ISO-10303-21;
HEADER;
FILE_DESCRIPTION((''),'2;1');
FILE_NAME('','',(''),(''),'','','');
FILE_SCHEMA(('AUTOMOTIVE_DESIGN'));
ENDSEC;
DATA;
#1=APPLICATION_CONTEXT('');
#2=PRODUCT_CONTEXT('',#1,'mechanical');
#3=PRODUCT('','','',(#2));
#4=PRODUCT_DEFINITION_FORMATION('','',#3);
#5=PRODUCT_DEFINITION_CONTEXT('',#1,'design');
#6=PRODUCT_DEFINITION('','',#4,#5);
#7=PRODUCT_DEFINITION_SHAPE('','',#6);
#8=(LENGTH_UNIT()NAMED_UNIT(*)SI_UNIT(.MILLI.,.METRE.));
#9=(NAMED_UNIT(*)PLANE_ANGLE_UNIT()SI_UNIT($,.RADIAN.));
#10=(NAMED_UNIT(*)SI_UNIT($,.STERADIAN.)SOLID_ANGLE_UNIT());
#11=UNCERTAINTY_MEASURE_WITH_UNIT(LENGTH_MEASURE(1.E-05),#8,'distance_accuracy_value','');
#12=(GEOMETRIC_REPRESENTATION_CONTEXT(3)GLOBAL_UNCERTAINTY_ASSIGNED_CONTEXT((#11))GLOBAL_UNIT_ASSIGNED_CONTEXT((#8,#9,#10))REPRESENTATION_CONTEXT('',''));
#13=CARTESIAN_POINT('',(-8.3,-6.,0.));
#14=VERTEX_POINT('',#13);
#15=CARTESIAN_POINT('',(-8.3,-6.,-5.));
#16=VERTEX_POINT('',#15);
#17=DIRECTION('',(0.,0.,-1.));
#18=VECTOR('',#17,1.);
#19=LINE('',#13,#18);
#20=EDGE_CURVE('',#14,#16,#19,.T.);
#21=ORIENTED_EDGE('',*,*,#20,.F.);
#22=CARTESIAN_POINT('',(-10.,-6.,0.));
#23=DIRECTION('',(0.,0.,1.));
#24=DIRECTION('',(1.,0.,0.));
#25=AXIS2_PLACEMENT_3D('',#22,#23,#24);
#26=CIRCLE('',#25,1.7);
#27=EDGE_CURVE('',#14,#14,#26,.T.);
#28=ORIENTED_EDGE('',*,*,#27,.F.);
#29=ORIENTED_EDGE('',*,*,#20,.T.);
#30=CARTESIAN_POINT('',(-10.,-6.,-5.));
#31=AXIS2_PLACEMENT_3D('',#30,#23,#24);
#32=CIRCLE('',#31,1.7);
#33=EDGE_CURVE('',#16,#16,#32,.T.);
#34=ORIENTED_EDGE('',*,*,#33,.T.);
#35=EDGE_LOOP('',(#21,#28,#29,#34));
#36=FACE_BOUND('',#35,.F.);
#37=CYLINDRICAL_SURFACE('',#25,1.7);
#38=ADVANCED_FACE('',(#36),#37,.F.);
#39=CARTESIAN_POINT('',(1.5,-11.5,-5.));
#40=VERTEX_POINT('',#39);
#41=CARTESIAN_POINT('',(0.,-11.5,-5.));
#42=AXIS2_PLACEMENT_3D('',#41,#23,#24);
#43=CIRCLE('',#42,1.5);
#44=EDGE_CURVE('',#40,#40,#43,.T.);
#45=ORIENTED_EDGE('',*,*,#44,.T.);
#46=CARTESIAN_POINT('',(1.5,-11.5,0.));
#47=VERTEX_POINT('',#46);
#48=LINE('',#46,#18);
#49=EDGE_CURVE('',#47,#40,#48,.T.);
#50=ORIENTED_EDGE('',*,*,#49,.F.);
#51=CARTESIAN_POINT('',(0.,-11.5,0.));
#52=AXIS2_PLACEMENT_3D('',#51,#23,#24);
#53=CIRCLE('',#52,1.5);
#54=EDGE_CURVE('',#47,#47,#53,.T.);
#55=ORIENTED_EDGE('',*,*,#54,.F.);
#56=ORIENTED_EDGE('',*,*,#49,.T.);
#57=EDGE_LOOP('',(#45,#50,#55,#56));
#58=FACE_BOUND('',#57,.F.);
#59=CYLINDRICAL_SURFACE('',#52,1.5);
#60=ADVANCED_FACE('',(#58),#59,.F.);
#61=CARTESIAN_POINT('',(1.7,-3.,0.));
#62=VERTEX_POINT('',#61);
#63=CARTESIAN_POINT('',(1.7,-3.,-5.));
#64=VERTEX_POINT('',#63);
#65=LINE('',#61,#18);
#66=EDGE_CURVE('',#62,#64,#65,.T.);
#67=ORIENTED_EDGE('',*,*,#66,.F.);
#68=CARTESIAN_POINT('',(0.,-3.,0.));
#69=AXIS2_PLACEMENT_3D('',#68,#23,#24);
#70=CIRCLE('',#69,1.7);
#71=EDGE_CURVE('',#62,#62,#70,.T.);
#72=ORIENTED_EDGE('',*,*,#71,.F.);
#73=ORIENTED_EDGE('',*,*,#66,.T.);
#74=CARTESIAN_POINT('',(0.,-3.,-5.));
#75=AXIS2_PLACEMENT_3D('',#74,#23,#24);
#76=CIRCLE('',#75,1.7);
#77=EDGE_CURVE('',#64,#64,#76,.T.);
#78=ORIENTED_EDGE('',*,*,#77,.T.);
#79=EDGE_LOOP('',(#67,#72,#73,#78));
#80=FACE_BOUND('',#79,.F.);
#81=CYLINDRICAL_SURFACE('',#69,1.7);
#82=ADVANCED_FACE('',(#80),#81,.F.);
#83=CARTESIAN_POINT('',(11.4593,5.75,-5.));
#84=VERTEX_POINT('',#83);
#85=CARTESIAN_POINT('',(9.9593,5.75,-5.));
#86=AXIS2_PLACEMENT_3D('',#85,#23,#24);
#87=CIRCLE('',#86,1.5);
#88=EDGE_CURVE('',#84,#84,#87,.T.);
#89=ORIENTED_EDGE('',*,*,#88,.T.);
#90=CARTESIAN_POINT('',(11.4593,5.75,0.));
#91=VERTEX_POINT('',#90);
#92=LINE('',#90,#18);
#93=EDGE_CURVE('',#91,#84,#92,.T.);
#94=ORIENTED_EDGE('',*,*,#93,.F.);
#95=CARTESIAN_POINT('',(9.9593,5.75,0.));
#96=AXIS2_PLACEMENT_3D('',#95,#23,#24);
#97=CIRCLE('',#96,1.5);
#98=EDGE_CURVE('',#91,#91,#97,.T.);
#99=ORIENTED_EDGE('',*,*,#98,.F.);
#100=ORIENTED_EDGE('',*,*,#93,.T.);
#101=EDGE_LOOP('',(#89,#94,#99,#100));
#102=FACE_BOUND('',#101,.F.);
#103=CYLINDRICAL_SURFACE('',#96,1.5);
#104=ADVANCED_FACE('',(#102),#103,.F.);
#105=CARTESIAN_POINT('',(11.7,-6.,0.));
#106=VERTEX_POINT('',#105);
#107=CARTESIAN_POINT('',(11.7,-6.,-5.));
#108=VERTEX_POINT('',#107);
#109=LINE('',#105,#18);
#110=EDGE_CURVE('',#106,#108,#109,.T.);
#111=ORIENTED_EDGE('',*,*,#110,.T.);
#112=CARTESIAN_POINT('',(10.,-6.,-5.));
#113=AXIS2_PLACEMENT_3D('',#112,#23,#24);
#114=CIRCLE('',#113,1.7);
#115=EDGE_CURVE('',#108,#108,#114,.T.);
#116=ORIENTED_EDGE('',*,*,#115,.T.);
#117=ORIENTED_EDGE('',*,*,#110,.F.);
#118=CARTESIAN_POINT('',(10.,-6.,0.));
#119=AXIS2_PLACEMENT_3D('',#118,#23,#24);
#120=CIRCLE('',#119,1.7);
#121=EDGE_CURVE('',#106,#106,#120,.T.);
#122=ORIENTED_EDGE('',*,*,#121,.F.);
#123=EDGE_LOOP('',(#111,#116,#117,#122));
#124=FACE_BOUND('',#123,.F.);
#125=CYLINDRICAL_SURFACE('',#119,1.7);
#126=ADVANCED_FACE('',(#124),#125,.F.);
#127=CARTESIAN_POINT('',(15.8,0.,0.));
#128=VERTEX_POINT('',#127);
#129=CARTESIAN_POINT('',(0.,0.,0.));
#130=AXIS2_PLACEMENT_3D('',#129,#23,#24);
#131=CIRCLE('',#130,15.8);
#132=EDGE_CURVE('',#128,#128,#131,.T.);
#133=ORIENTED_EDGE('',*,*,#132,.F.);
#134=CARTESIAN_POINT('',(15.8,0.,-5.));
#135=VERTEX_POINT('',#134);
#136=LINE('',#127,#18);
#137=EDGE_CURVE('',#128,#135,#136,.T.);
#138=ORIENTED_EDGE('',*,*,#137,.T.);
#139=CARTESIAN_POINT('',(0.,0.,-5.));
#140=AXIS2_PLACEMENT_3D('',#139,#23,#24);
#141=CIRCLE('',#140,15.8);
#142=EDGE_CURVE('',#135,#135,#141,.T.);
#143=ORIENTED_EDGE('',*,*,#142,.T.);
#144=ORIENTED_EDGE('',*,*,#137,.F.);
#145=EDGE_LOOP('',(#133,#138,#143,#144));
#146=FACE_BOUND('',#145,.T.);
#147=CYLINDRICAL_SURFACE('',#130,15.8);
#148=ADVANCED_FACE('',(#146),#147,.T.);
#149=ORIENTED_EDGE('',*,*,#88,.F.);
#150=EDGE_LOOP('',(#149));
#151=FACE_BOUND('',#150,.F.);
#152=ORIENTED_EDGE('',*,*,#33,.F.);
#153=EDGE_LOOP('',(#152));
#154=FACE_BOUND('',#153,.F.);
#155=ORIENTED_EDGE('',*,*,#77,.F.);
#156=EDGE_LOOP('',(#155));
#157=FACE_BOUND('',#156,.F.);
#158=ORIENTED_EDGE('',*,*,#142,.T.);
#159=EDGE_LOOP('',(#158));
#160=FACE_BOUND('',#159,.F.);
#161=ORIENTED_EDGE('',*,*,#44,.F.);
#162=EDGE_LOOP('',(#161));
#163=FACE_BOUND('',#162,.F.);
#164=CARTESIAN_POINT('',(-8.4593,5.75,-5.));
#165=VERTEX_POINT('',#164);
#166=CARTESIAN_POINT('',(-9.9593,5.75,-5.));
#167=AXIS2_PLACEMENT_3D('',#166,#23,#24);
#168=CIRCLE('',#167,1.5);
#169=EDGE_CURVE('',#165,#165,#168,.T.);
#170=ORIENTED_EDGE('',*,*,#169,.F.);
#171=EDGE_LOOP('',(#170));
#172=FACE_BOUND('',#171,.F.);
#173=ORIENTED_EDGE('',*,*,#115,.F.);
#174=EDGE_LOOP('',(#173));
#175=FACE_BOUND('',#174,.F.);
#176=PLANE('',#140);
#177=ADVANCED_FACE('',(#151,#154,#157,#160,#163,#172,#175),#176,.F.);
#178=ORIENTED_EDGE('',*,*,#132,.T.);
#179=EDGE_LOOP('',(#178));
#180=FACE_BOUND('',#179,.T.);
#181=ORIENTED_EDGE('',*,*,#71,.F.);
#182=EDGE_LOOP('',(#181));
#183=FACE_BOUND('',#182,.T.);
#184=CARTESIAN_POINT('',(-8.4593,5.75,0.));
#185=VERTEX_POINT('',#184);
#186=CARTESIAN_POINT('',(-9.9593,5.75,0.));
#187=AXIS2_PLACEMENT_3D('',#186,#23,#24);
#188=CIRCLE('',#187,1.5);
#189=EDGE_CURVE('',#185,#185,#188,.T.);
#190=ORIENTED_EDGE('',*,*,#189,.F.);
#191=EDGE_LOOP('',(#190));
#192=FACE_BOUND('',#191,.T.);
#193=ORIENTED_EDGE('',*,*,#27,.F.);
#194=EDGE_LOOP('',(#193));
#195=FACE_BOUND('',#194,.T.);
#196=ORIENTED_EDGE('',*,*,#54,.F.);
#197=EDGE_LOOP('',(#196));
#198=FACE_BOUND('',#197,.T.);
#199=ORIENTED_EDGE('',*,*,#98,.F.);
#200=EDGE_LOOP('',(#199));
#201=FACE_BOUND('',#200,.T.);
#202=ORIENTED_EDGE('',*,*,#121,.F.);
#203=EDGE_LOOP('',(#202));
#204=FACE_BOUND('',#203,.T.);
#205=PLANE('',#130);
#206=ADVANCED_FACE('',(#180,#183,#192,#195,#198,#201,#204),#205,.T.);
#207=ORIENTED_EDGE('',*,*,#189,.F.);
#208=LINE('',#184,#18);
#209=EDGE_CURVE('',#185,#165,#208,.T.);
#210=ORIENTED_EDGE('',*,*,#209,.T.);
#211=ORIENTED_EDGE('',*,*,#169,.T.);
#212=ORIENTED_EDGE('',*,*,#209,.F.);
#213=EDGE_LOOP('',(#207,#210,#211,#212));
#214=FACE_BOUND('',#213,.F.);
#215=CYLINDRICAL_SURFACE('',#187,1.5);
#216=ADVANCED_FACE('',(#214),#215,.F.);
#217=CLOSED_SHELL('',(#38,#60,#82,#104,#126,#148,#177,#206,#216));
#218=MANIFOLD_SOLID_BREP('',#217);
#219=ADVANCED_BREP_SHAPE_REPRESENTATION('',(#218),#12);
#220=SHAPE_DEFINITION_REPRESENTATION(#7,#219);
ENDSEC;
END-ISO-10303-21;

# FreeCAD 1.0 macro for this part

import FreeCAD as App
import Part
import Sketcher

V = App.Vector
Q = App.Units.Quantity

doc = App.newDocument("Part")
body = doc.addObject("PartDesign::Body", "Body")

# Sketch on XY plane
sketch1 = doc.addObject("Sketcher::SketchObject", "Sketch")
body.addObject(sketch1)
sketch1.AttachmentSupport = (doc.XY_Plane, [""])
sketch1.MapMode = "FlatFace"
sketch1.addGeometry(Part.Circle(V(0, 0, 0), V(0, 0, 1), 16), False)
sketch1.addConstraint([
    Sketcher.Constraint("Coincident", 0, 3, -1, 1),
    Sketcher.Constraint("Diameter", 0, Q("31.6 mm")),
])
pad1 = doc.addObject("PartDesign::Pad", "Pad")
body.addObject(pad1)
pad1.Profile = sketch1
pad1.Length = 5
pad1.Reversed = True

# Sketch on XY plane
sketch2 = doc.addObject("Sketcher::SketchObject", "Sketch001")
body.addObject(sketch2)
sketch2.AttachmentSupport = (doc.XY_Plane, [""])
sketch2.MapMode = "FlatFace"
sketch2.addGeometry([
    Part.Circle(V(0, -3, 0), V(0, 0, 1), 1.7),
    Part.Circle(V(-10, -6, 0), V(0, 0, 1), 1.7),
    Part.Circle(V(10, -6, 0), V(0, 0, 1), 1.7),
], False)
sketch2.addConstraint([
    Sketcher.Constraint("Equal", 0, 1),
    Sketcher.Constraint("Equal", 1, 2),
    Sketcher.Constraint("Symmetric", 1, 3, 2, 3, -2),
    Sketcher.Constraint("PointOnObject", 0, 3, -2),
    Sketcher.Constraint("Diameter", 0, Q("3.4 mm")),
    Sketcher.Constraint("DistanceY", 0, 3, -1, 1, Q("3 mm")),
    Sketcher.Constraint("DistanceX", 1, 3, -1, 1, Q("10 mm")),
    Sketcher.Constraint("DistanceY", 1, 3, -1, 1, Q("6 mm")),
])
pocket1 = doc.addObject("PartDesign::Pocket", "Pocket")
body.addObject(pocket1)
pocket1.Profile = sketch2
pocket1.Type = "ThroughAll"

# Sketch on XY plane
sketch3 = doc.addObject("Sketcher::SketchObject", "Sketch002")
body.addObject(sketch3)
sketch3.AttachmentSupport = (doc.XY_Plane, [""])
sketch3.MapMode = "FlatFace"
sketch3.addGeometry([
    Part.Circle(V(0, -11.5, 0), V(0, 0, 1), 1.5),
    Part.Circle(V(10, 5.8, 0), V(0, 0, 1), 1.5),
    Part.Circle(V(-10, 5.8, 0), V(0, 0, 1), 1.5),
], False)
sketch3.addConstraint([
    Sketcher.Constraint("Equal", 0, 1),
    Sketcher.Constraint("Equal", 1, 2),
    Sketcher.Constraint("Symmetric", 1, 3, 2, 3, -2),
    Sketcher.Constraint("PointOnObject", 0, 3, -2),
    Sketcher.Constraint("Diameter", 0, Q("3 mm")),
    Sketcher.Constraint("DistanceY", 0, 3, -1, 1, Q("11.5 mm")),
    Sketcher.Constraint("DistanceY", -1, 1, 1, 3, Q("5.75 mm")),
    Sketcher.Constraint("DistanceX", -1, 1, 1, 3, Q("9.9593 mm")),
])
pocket2 = doc.addObject("PartDesign::Pocket", "Pocket001")
body.addObject(pocket2)
pocket2.Profile = sketch3
pocket2.Type = "ThroughAll"

doc.recompute()
